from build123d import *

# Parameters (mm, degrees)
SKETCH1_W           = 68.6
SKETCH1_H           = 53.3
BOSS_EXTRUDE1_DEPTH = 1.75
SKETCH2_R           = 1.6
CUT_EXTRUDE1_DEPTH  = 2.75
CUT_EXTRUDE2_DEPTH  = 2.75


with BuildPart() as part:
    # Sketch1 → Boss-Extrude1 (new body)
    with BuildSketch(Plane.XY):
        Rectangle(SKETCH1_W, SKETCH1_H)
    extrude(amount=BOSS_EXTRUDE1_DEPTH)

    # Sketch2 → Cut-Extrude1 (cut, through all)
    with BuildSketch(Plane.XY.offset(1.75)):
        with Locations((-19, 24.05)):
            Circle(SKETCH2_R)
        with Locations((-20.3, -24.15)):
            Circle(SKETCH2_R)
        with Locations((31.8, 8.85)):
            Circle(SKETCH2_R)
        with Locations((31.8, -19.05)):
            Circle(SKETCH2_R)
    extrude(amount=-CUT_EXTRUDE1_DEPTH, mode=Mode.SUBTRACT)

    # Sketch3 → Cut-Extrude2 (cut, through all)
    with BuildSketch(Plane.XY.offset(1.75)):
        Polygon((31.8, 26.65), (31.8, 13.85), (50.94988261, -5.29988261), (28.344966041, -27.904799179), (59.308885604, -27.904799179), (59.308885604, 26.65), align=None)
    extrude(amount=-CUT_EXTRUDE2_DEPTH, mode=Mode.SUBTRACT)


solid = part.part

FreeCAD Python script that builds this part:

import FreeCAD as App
import Part
import Sketcher

V = App.Vector
Q = App.Units.Quantity

doc = App.newDocument("Part")
body = doc.addObject("PartDesign::Body", "Body")

sketch1 = body.newObject("Sketcher::SketchObject", "Sketch")
sketch1.AttachmentSupport = (doc.getObject("XY_Plane"), [""])
sketch1.MapMode = "FlatFace"
sketch1.addGeometry([
    Part.LineSegment(V(-34.3, 26.65, 0), V(-34.3, -26.65, 0)),
    Part.LineSegment(V(-34.3, -26.65, 0), V(34.3, -26.65, 0)),
    Part.LineSegment(V(34.3, -26.65, 0), V(34.3, 26.65, 0)),
    Part.LineSegment(V(34.3, 26.65, 0), V(-34.3, 26.65, 0)),
], False)
sketch1.addConstraint([
    Sketcher.Constraint("Coincident", 0, 2, 1, 1),
    Sketcher.Constraint("Coincident", 1, 2, 2, 1),
    Sketcher.Constraint("Coincident", 2, 2, 3, 1),
    Sketcher.Constraint("Coincident", 3, 2, 0, 1),
    Sketcher.Constraint("Vertical", 0),
    Sketcher.Constraint("Horizontal", 1),
    Sketcher.Constraint("Vertical", 2),
    Sketcher.Constraint("Horizontal", 3),
    Sketcher.Constraint("Symmetric", 0, 2, 2, 2, -1, 1),
    Sketcher.Constraint("DistanceX", 1, 1, 1, 2, 68.6),
    Sketcher.Constraint("DistanceY", 0, 2, 0, 1, 53.3),
])
pad1 = body.newObject("PartDesign::Pad", "Pad")
pad1.Profile = sketch1
pad1.Length = 1.75

sketch2 = body.newObject("Sketcher::SketchObject", "Sketch001")
sketch2.AttachmentSupport = (doc.getObject("XY_Plane"), [""])
sketch2.MapMode = "FlatFace"
sketch2.AttachmentOffset = App.Placement(V(0, 0, 1.75), App.Rotation())
sketch2.addGeometry([
    Part.Circle(V(-19, 24.05, 0), V(0, 0, 1), 1.6),
    Part.Circle(V(-20.3, -24.15, 0), V(0, 0, 1), 1.6),
    Part.Circle(V(31.8, 8.85, 0), V(0, 0, 1), 1.6),
    Part.Circle(V(31.8, -19.05, 0), V(0, 0, 1), 1.6),
], False)
sketch2.addConstraint([
    Sketcher.Constraint("Equal", 0, 1),
    Sketcher.Constraint("Equal", 1, 2),
    Sketcher.Constraint("Equal", 2, 3),
    Sketcher.Constraint("Vertical", 2, 3, 3, 3),
    Sketcher.Constraint("Diameter", 0, 3.2),
    Sketcher.Constraint("DistanceX", 0, 3, -1, 1, 19.0),
    Sketcher.Constraint("DistanceY", 1, 3, 2, 3, 33.0),
    Sketcher.Constraint("DistanceX", 1, 3, -1, 1, 20.3),
    Sketcher.Constraint("DistanceX", -1, 1, 2, 3, 31.8),
    Sketcher.Constraint("DistanceY", 1, 3, 0, 3, 48.2),
    Sketcher.Constraint("DistanceY", 3, 3, 2, 3, 27.9),
    Sketcher.Constraint("DistanceY", -1, 1, 0, 3, 24.05),
])
pocket1 = body.newObject("PartDesign::Pocket", "Pocket")
pocket1.Profile = sketch2
pocket1.Type = "ThroughAll"

sketch3 = body.newObject("Sketcher::SketchObject", "Sketch002")
sketch3.AttachmentSupport = (doc.getObject("XY_Plane"), [""])
sketch3.MapMode = "FlatFace"
sketch3.AttachmentOffset = App.Placement(V(0, 0, 1.75), App.Rotation())
sketch3.addGeometry([
    Part.LineSegment(V(31.8, 26.65, 0), V(31.8, 13.85, 0)),
    Part.LineSegment(V(31.8, 13.85, 0), V(50.949883, -5.299883, 0)),
    Part.LineSegment(V(50.949883, -5.299883, 0), V(28.344966, -27.904799, 0)),
    Part.LineSegment(V(28.344966, -27.904799, 0), V(59.308886, -27.904799, 0)),
    Part.LineSegment(V(59.308886, -27.904799, 0), V(59.308886, 26.65, 0)),
    Part.LineSegment(V(59.308886, 26.65, 0), V(31.8, 26.65, 0)),
], False)
sketch3.addConstraint([
    Sketcher.Constraint("Coincident", 0, 2, 1, 1),
    Sketcher.Constraint("Coincident", 1, 2, 2, 1),
    Sketcher.Constraint("Coincident", 2, 2, 3, 1),
    Sketcher.Constraint("Coincident", 3, 2, 4, 1),
    Sketcher.Constraint("Coincident", 4, 2, 5, 1),
    Sketcher.Constraint("Coincident", 5, 2, 0, 1),
    Sketcher.Constraint("Vertical", 0),
    Sketcher.Constraint("Horizontal", 3),
    Sketcher.Constraint("Vertical", 4),
    Sketcher.Constraint("Horizontal", 5),
    Sketcher.Constraint("Perpendicular", 1, 2),
    Sketcher.Constraint("Angle", 1, Q("-45 deg")),
    Sketcher.Constraint("DistanceY", 0, 2, 0, 1, 12.8),
    Sketcher.Constraint("DistanceX", -1, 1, 0, 2, 31.8),
    Sketcher.Constraint("DistanceY", -1, 1, 0, 2, 13.85),
    Sketcher.Constraint("DistanceY", 4, 1, 4, 2, 54.554799),
    Sketcher.Constraint("DistanceX", 3, 1, 3, 2, 30.96392),
    Sketcher.Constraint("Distance", 2, 31.96818),
])
pocket2 = body.newObject("PartDesign::Pocket", "Pocket001")
pocket2.Profile = sketch3
pocket2.Type = "ThroughAll"

doc.recompute()
